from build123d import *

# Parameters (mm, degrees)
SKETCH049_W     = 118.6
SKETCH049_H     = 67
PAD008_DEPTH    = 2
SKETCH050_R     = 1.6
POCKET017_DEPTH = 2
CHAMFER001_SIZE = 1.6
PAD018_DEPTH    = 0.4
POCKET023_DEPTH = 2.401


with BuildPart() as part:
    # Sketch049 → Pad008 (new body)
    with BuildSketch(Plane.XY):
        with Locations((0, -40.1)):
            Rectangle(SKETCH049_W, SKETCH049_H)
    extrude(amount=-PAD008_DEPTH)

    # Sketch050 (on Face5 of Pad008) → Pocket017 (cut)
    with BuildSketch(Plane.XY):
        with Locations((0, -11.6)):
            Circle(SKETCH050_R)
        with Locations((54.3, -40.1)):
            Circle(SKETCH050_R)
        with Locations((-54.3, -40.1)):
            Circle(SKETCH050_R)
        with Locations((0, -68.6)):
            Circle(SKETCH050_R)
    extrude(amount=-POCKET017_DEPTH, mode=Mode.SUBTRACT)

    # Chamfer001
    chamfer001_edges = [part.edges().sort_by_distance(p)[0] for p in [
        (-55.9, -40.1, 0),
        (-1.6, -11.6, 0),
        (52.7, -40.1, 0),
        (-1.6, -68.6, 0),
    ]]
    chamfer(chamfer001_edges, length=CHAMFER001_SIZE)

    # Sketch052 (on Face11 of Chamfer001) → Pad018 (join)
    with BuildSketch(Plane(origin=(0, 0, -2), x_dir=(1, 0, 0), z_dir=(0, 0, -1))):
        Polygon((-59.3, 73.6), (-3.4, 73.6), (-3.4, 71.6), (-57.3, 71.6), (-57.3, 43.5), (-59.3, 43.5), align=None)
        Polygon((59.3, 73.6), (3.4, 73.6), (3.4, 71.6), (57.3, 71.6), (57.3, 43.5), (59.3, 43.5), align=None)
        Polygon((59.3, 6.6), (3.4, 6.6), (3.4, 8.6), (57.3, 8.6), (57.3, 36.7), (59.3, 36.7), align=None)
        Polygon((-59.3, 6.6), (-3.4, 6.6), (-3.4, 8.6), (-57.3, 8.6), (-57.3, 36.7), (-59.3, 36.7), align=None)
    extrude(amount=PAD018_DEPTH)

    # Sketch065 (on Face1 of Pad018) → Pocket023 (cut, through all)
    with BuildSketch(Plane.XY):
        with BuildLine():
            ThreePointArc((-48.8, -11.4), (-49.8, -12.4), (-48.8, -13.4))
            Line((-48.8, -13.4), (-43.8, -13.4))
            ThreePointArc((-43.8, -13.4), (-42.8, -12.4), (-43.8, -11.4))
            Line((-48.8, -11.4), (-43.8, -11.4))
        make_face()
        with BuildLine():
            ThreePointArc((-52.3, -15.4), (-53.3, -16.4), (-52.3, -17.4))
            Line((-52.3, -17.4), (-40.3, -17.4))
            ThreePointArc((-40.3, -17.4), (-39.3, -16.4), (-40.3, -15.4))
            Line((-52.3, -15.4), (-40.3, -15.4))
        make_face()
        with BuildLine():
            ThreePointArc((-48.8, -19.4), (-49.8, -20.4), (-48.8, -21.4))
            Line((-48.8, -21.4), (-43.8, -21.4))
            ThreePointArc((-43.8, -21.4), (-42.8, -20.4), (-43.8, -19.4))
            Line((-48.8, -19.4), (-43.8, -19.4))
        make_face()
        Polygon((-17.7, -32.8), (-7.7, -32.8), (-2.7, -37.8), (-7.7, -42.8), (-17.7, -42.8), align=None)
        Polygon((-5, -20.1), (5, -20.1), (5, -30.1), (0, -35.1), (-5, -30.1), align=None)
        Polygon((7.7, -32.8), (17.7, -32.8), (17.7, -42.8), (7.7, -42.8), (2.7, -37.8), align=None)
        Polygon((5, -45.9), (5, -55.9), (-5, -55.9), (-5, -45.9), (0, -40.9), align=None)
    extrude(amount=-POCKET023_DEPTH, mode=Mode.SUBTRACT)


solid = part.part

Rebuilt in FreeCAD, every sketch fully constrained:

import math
import FreeCAD as App
import Part
import Sketcher
from FreeCAD import Vector


def edges_at(feature, points):
    """Names of the edges that pass closest to the given points."""
    edges = feature.Shape.Edges
    near = lambda p: min(range(len(edges)), key=lambda i: edges[i].distToShape(Part.Vertex(*p))[0])
    return sorted({f"Edge{near(p) + 1}" for p in points})

doc = App.newDocument("Part")
body = doc.addObject("PartDesign::Body", "Body")

sketch1 = body.newObject("Sketcher::SketchObject", "Sketch")
sketch1.AttachmentSupport = (doc.getObject("XY_Plane"), [""])
sketch1.MapMode = "FlatFace"
sketch1.addGeometry(Part.LineSegment(Vector(-59, -7, 0), Vector(-59, -74, 0)), False)
sketch1.addGeometry(Part.LineSegment(Vector(-59, -74, 0), Vector(59, -74, 0)), False)
sketch1.addGeometry(Part.LineSegment(Vector(59, -74, 0), Vector(59, -7, 0)), False)
sketch1.addGeometry(Part.LineSegment(Vector(59, -7, 0), Vector(-59, -7, 0)), False)
sketch1.addConstraint(Sketcher.Constraint("Coincident", 0, 2, 1, 1))
sketch1.addConstraint(Sketcher.Constraint("Coincident", 1, 2, 2, 1))
sketch1.addConstraint(Sketcher.Constraint("Coincident", 2, 2, 3, 1))
sketch1.addConstraint(Sketcher.Constraint("Coincident", 3, 2, 0, 1))
sketch1.addConstraint(Sketcher.Constraint("Vertical", 0))
sketch1.addConstraint(Sketcher.Constraint("Horizontal", 1))
sketch1.addConstraint(Sketcher.Constraint("Vertical", 2))
sketch1.addConstraint(Sketcher.Constraint("Horizontal", 3))
sketch1.addConstraint(Sketcher.Constraint("DistanceY", 0, 2, 0, 1, 67.0))
sketch1.addConstraint(Sketcher.Constraint("DistanceX", 1, 1, 1, 2, 118.6))
sketch1.addConstraint(Sketcher.Constraint("DistanceX", 0, 2, -1, 1, 59.3))
sketch1.addConstraint(Sketcher.Constraint("DistanceY", 0, 2, -1, 1, 73.6))
pad1 = body.newObject("PartDesign::Pad", "Pad")
pad1.Profile = sketch1
pad1.Length = 2
pad1.Reversed = True

sketch2 = body.newObject("Sketcher::SketchObject", "Sketch001")
sketch2.AttachmentSupport = (doc.getObject("XY_Plane"), [""])
sketch2.MapMode = "FlatFace"
sketch2.addGeometry(Part.Circle(Vector(0, -11.6, 0), Vector(0, 0, 1), 1.6), False)
sketch2.addGeometry(Part.Circle(Vector(54.3, -40.1, 0), Vector(0, 0, 1), 1.6), False)
sketch2.addGeometry(Part.Circle(Vector(-54.3, -40.1, 0), Vector(0, 0, 1), 1.6), False)
sketch2.addGeometry(Part.Circle(Vector(0, -68.6, 0), Vector(0, 0, 1), 1.6), False)
sketch2.addConstraint(Sketcher.Constraint("Equal", 0, 1))
sketch2.addConstraint(Sketcher.Constraint("Equal", 1, 2))
sketch2.addConstraint(Sketcher.Constraint("Equal", 2, 3))
sketch2.addConstraint(Sketcher.Constraint("Symmetric", 1, 3, 2, 3, -2))
sketch2.addConstraint(Sketcher.Constraint("PointOnObject", 0, 3, -2))
sketch2.addConstraint(Sketcher.Constraint("PointOnObject", 3, 3, -2))
sketch2.addConstraint(Sketcher.Constraint("Diameter", 0, 3.2))
sketch2.addConstraint(Sketcher.Constraint("DistanceY", 3, 3, 0, 3, 57.0))
sketch2.addConstraint(Sketcher.Constraint("DistanceY", 0, 3, -1, 1, 11.6))
sketch2.addConstraint(Sketcher.Constraint("DistanceX", -1, 1, 1, 3, 54.3))
sketch2.addConstraint(Sketcher.Constraint("DistanceY", 1, 3, -1, 1, 40.1))
pocket1 = body.newObject("PartDesign::Pocket", "Pocket")
pocket1.Profile = sketch2
pocket1.Length = 2
doc.recompute()

chamfer = body.newObject("PartDesign::Chamfer", "Chamfer")
chamfer.Base = (pocket1, edges_at(pocket1, [
    (-55.9, -40.1, 0),
    (-1.6, -11.6, 0),
    (52.7, -40.1, 0),
    (-1.6, -68.6, 0),
]))
chamfer.Size = 1.6

sketch3 = body.newObject("Sketcher::SketchObject", "Sketch002")
sketch3.AttachmentSupport = (doc.getObject("XY_Plane"), [""])
sketch3.MapMode = "FlatFace"
sketch3.AttachmentOffset = App.Placement(Vector(0, 0, -2), App.Rotation())
sketch3.addGeometry(Part.LineSegment(Vector(-3.4, -73.6, 0), Vector(-59.3, -73.6, 0)), False)
sketch3.addGeometry(Part.LineSegment(Vector(-59.3, -73.6, 0), Vector(-59.3, -43.5, 0)), False)
sketch3.addGeometry(Part.LineSegment(Vector(-59.3, -43.5, 0), Vector(-57.3, -43.5, 0)), False)
sketch3.addGeometry(Part.LineSegment(Vector(-57.3, -43.5, 0), Vector(-57.3, -71.6, 0)), False)
sketch3.addGeometry(Part.LineSegment(Vector(-57.3, -71.6, 0), Vector(-3.4, -71.6, 0)), False)
sketch3.addGeometry(Part.LineSegment(Vector(-3.4, -71.6, 0), Vector(-3.4, -73.6, 0)), False)
sketch3.addGeometry(Part.LineSegment(Vector(59.3, -73.6, 0), Vector(3.4, -73.6, 0)), False)
sketch3.addGeometry(Part.LineSegment(Vector(3.4, -73.6, 0), Vector(3.4, -71.6, 0)), False)
sketch3.addGeometry(Part.LineSegment(Vector(3.4, -71.6, 0), Vector(57.3, -71.6, 0)), False)
sketch3.addGeometry(Part.LineSegment(Vector(57.3, -71.6, 0), Vector(57.3, -43.5, 0)), False)
sketch3.addGeometry(Part.LineSegment(Vector(57.3, -43.5, 0), Vector(59.3, -43.5, 0)), False)
sketch3.addGeometry(Part.LineSegment(Vector(59.3, -43.5, 0), Vector(59.3, -73.6, 0)), False)
sketch3.addGeometry(Part.LineSegment(Vector(3.4, -6.6, 0), Vector(59.3, -6.6, 0)), False)
sketch3.addGeometry(Part.LineSegment(Vector(59.3, -6.6, 0), Vector(59.3, -36.7, 0)), False)
sketch3.addGeometry(Part.LineSegment(Vector(59.3, -36.7, 0), Vector(57.3, -36.7, 0)), False)
sketch3.addGeometry(Part.LineSegment(Vector(57.3, -36.7, 0), Vector(57.3, -8.6, 0)), False)
sketch3.addGeometry(Part.LineSegment(Vector(57.3, -8.6, 0), Vector(3.4, -8.6, 0)), False)
sketch3.addGeometry(Part.LineSegment(Vector(3.4, -8.6, 0), Vector(3.4, -6.6, 0)), False)
sketch3.addGeometry(Part.LineSegment(Vector(-59.3, -6.6, 0), Vector(-3.4, -6.6, 0)), False)
sketch3.addGeometry(Part.LineSegment(Vector(-3.4, -6.6, 0), Vector(-3.4, -8.6, 0)), False)
sketch3.addGeometry(Part.LineSegment(Vector(-3.4, -8.6, 0), Vector(-57.3, -8.6, 0)), False)
sketch3.addGeometry(Part.LineSegment(Vector(-57.3, -8.6, 0), Vector(-57.3, -36.7, 0)), False)
sketch3.addGeometry(Part.LineSegment(Vector(-57.3, -36.7, 0), Vector(-59.3, -36.7, 0)), False)
sketch3.addGeometry(Part.LineSegment(Vector(-59.3, -36.7, 0), Vector(-59.3, -6.6, 0)), False)
sketch3.addConstraint(Sketcher.Constraint("Coincident", 0, 2, 1, 1))
sketch3.addConstraint(Sketcher.Constraint("Coincident", 1, 2, 2, 1))
sketch3.addConstraint(Sketcher.Constraint("Coincident", 2, 2, 3, 1))
sketch3.addConstraint(Sketcher.Constraint("Coincident", 3, 2, 4, 1))
sketch3.addConstraint(Sketcher.Constraint("Coincident", 4, 2, 5, 1))
sketch3.addConstraint(Sketcher.Constraint("Coincident", 5, 2, 0, 1))
sketch3.addConstraint(Sketcher.Constraint("Coincident", 6, 2, 7, 1))
sketch3.addConstraint(Sketcher.Constraint("Coincident", 7, 2, 8, 1))
sketch3.addConstraint(Sketcher.Constraint("Coincident", 8, 2, 9, 1))
sketch3.addConstraint(Sketcher.Constraint("Coincident", 9, 2, 10, 1))
sketch3.addConstraint(Sketcher.Constraint("Coincident", 10, 2, 11, 1))
sketch3.addConstraint(Sketcher.Constraint("Coincident", 11, 2, 6, 1))
sketch3.addConstraint(Sketcher.Constraint("Coincident", 12, 2, 13, 1))
sketch3.addConstraint(Sketcher.Constraint("Coincident", 13, 2, 14, 1))
sketch3.addConstraint(Sketcher.Constraint("Coincident", 14, 2, 15, 1))
sketch3.addConstraint(Sketcher.Constraint("Coincident", 15, 2, 16, 1))
sketch3.addConstraint(Sketcher.Constraint("Coincident", 16, 2, 17, 1))
sketch3.addConstraint(Sketcher.Constraint("Coincident", 17, 2, 12, 1))
sketch3.addConstraint(Sketcher.Constraint("Coincident", 18, 2, 19, 1))
sketch3.addConstraint(Sketcher.Constraint("Coincident", 19, 2, 20, 1))
sketch3.addConstraint(Sketcher.Constraint("Coincident", 20, 2, 21, 1))
sketch3.addConstraint(Sketcher.Constraint("Coincident", 21, 2, 22, 1))
sketch3.addConstraint(Sketcher.Constraint("Coincident", 22, 2, 23, 1))
sketch3.addConstraint(Sketcher.Constraint("Coincident", 23, 2, 18, 1))
sketch3.addConstraint(Sketcher.Constraint("Horizontal", 0))
sketch3.addConstraint(Sketcher.Constraint("Vertical", 1))
sketch3.addConstraint(Sketcher.Constraint("Horizontal", 2))
sketch3.addConstraint(Sketcher.Constraint("Vertical", 3))
sketch3.addConstraint(Sketcher.Constraint("Horizontal", 4))
sketch3.addConstraint(Sketcher.Constraint("Vertical", 5))
sketch3.addConstraint(Sketcher.Constraint("Horizontal", 6))
sketch3.addConstraint(Sketcher.Constraint("Vertical", 7))
sketch3.addConstraint(Sketcher.Constraint("Horizontal", 8))
sketch3.addConstraint(Sketcher.Constraint("Vertical", 9))
sketch3.addConstraint(Sketcher.Constraint("Horizontal", 10))
sketch3.addConstraint(Sketcher.Constraint("Vertical", 11))
sketch3.addConstraint(Sketcher.Constraint("Horizontal", 12))
sketch3.addConstraint(Sketcher.Constraint("Vertical", 13))
sketch3.addConstraint(Sketcher.Constraint("Horizontal", 14))
sketch3.addConstraint(Sketcher.Constraint("Vertical", 15))
sketch3.addConstraint(Sketcher.Constraint("Horizontal", 16))
sketch3.addConstraint(Sketcher.Constraint("Vertical", 17))
sketch3.addConstraint(Sketcher.Constraint("Horizontal", 18))
sketch3.addConstraint(Sketcher.Constraint("Vertical", 19))
sketch3.addConstraint(Sketcher.Constraint("Horizontal", 20))
sketch3.addConstraint(Sketcher.Constraint("Vertical", 21))
sketch3.addConstraint(Sketcher.Constraint("Horizontal", 22))
sketch3.addConstraint(Sketcher.Constraint("Vertical", 23))
sketch3.addConstraint(Sketcher.Constraint("Symmetric", 5, 2, 6, 2, -2))
sketch3.addConstraint(Sketcher.Constraint("Symmetric", 3, 2, 8, 2, -2))
sketch3.addConstraint(Sketcher.Constraint("Symmetric", 1, 2, 10, 2, -2))
sketch3.addConstraint(Sketcher.Constraint("Symmetric", 17, 2, 18, 2, -2))
sketch3.addConstraint(Sketcher.Constraint("Symmetric", 15, 2, 20, 2, -2))
sketch3.addConstraint(Sketcher.Constraint("Symmetric", 13, 2, 22, 2, -2))
sketch3.addConstraint(Sketcher.Constraint("Vertical", 11, 2, 12, 2))
sketch3.addConstraint(Sketcher.Constraint("Vertical", 9, 2, 14, 2))
sketch3.addConstraint(Sketcher.Constraint("Vertical", 7, 2, 16, 2))
sketch3.addConstraint(Sketcher.Constraint("Equal", 22, 5))
sketch3.addConstraint(Sketcher.Constraint("Equal", 11, 13))
sketch3.addConstraint(Sketcher.Constraint("Equal", 9, 15))
sketch3.addConstraint(Sketcher.Constraint("DistanceX", 2, 1, 2, 2, 2.0))
sketch3.addConstraint(Sketcher.Constraint("DistanceX", 0, 2, 0, 1, 55.9))
sketch3.addConstraint(Sketcher.Constraint("DistanceY", 1, 1, 1, 2, 30.1))
sketch3.addConstraint(Sketcher.Constraint("DistanceY", 8, 2, 12, 2, 65.0))
sketch3.addConstraint(Sketcher.Constraint("DistanceX", 0, 2, -1, 1, 59.3))
sketch3.addConstraint(Sketcher.Constraint("DistanceY", 0, 2, -1, 1, 73.6))
pad2 = body.newObject("PartDesign::Pad", "Pad001")
pad2.Profile = sketch3
pad2.Length = 0.4
pad2.Reversed = True

sketch4 = body.newObject("Sketcher::SketchObject", "Sketch003")
sketch4.AttachmentSupport = (doc.getObject("XY_Plane"), [""])
sketch4.MapMode = "FlatFace"
sketch4.addGeometry(Part.ArcOfCircle(Part.Circle(Vector(-48.8, -12.4, 0), Vector(0, 0, 1), 1), math.radians(90), math.radians(270)), False)
sketch4.addGeometry(Part.LineSegment(Vector(-48.8, -13.4, 0), Vector(-43.8, -13.4, 0)), False)
sketch4.addGeometry(Part.ArcOfCircle(Part.Circle(Vector(-43.8, -12.4, 0), Vector(0, 0, 1), 1), math.radians(-90), math.radians(90)), False)
sketch4.addGeometry(Part.LineSegment(Vector(-43.8, -11.4, 0), Vector(-48.8, -11.4, 0)), False)
sketch4.addGeometry(Part.ArcOfCircle(Part.Circle(Vector(-52.3, -16.4, 0), Vector(0, 0, 1), 1), math.radians(90), math.radians(270)), False)
sketch4.addGeometry(Part.LineSegment(Vector(-52.3, -17.4, 0), Vector(-40.3, -17.4, 0)), False)
sketch4.addGeometry(Part.ArcOfCircle(Part.Circle(Vector(-40.3, -16.4, 0), Vector(0, 0, 1), 1), math.radians(-90), math.radians(90)), False)
sketch4.addGeometry(Part.LineSegment(Vector(-40.3, -15.4, 0), Vector(-52.3, -15.4, 0)), False)
sketch4.addGeometry(Part.ArcOfCircle(Part.Circle(Vector(-48.8, -20.4, 0), Vector(0, 0, 1), 1), math.radians(90), math.radians(270)), False)
sketch4.addGeometry(Part.LineSegment(Vector(-48.8, -21.4, 0), Vector(-43.8, -21.4, 0)), False)
sketch4.addGeometry(Part.ArcOfCircle(Part.Circle(Vector(-43.8, -20.4, 0), Vector(0, 0, 1), 1), math.radians(-90), math.radians(90)), False)
sketch4.addGeometry(Part.LineSegment(Vector(-43.8, -19.4, 0), Vector(-48.8, -19.4, 0)), False)
sketch4.addGeometry(Part.LineSegment(Vector(-7.7, -32.8, 0), Vector(-17.7, -32.8, 0)), False)
sketch4.addGeometry(Part.LineSegment(Vector(-17.7, -32.8, 0), Vector(-17.7, -42.8, 0)), False)
sketch4.addGeometry(Part.LineSegment(Vector(-17.7, -42.8, 0), Vector(-7.7, -42.8, 0)), False)
sketch4.addGeometry(Part.LineSegment(Vector(-7.7, -42.8, 0), Vector(-2.7, -37.8, 0)), False)
sketch4.addGeometry(Part.LineSegment(Vector(-2.7, -37.8, 0), Vector(-7.7, -32.8, 0)), False)
sketch4.addGeometry(Part.LineSegment(Vector(5, -20.1, 0), Vector(-5, -20.1, 0)), False)
sketch4.addGeometry(Part.LineSegment(Vector(-5, -20.1, 0), Vector(-5, -30.1, 0)), False)
sketch4.addGeometry(Part.LineSegment(Vector(-5, -30.1, 0), Vector(0, -35.1, 0)), False)
sketch4.addGeometry(Part.LineSegment(Vector(0, -35.1, 0), Vector(5, -30.1, 0)), False)
sketch4.addGeometry(Part.LineSegment(Vector(5, -30.1, 0), Vector(5, -20.1, 0)), False)
sketch4.addGeometry(Part.LineSegment(Vector(17.7, -32.8, 0), Vector(7.7, -32.8, 0)), False)
sketch4.addGeometry(Part.LineSegment(Vector(7.7, -32.8, 0), Vector(2.7, -37.8, 0)), False)
sketch4.addGeometry(Part.LineSegment(Vector(2.7, -37.8, 0), Vector(7.7, -42.8, 0)), False)
sketch4.addGeometry(Part.LineSegment(Vector(7.7, -42.8, 0), Vector(17.7, -42.8, 0)), False)
sketch4.addGeometry(Part.LineSegment(Vector(17.7, -42.8, 0), Vector(17.7, -32.8, 0)), False)
sketch4.addGeometry(Part.LineSegment(Vector(5, -55.9, 0), Vector(5, -45.9, 0)), False)
sketch4.addGeometry(Part.LineSegment(Vector(5, -45.9, 0), Vector(0, -40.9, 0)), False)
sketch4.addGeometry(Part.LineSegment(Vector(0, -40.9, 0), Vector(-5, -45.9, 0)), False)
sketch4.addGeometry(Part.LineSegment(Vector(-5, -45.9, 0), Vector(-5, -55.9, 0)), False)
sketch4.addGeometry(Part.LineSegment(Vector(-5, -55.9, 0), Vector(5, -55.9, 0)), False)
sketch4.addConstraint(Sketcher.Constraint("Tangent", 0, 2, 1, 1))
sketch4.addConstraint(Sketcher.Constraint("Tangent", 1, 2, 2, 1))
sketch4.addConstraint(Sketcher.Constraint("Tangent", 2, 2, 3, 1))
sketch4.addConstraint(Sketcher.Constraint("Tangent", 3, 2, 0, 1))
sketch4.addConstraint(Sketcher.Constraint("Tangent", 4, 2, 5, 1))
sketch4.addConstraint(Sketcher.Constraint("Tangent", 5, 2, 6, 1))
sketch4.addConstraint(Sketcher.Constraint("Tangent", 6, 2, 7, 1))
sketch4.addConstraint(Sketcher.Constraint("Tangent", 7, 2, 4, 1))
sketch4.addConstraint(Sketcher.Constraint("Tangent", 8, 2, 9, 1))
sketch4.addConstraint(Sketcher.Constraint("Tangent", 9, 2, 10, 1))
sketch4.addConstraint(Sketcher.Constraint("Tangent", 10, 2, 11, 1))
sketch4.addConstraint(Sketcher.Constraint("Tangent", 11, 2, 8, 1))
sketch4.addConstraint(Sketcher.Constraint("Coincident", 12, 2, 13, 1))
sketch4.addConstraint(Sketcher.Constraint("Coincident", 13, 2, 14, 1))
sketch4.addConstraint(Sketcher.Constraint("Coincident", 14, 2, 15, 1))
sketch4.addConstraint(Sketcher.Constraint("Coincident", 15, 2, 16, 1))
sketch4.addConstraint(Sketcher.Constraint("Coincident", 16, 2, 12, 1))
sketch4.addConstraint(Sketcher.Constraint("Coincident", 17, 2, 18, 1))
sketch4.addConstraint(Sketcher.Constraint("Coincident", 18, 2, 19, 1))
sketch4.addConstraint(Sketcher.Constraint("Coincident", 19, 2, 20, 1))
sketch4.addConstraint(Sketcher.Constraint("Coincident", 20, 2, 21, 1))
sketch4.addConstraint(Sketcher.Constraint("Coincident", 21, 2, 17, 1))
sketch4.addConstraint(Sketcher.Constraint("Coincident", 22, 2, 23, 1))
sketch4.addConstraint(Sketcher.Constraint("Coincident", 23, 2, 24, 1))
sketch4.addConstraint(Sketcher.Constraint("Coincident", 24, 2, 25, 1))
sketch4.addConstraint(Sketcher.Constraint("Coincident", 25, 2, 26, 1))
sketch4.addConstraint(Sketcher.Constraint("Coincident", 26, 2, 22, 1))
sketch4.addConstraint(Sketcher.Constraint("Coincident", 27, 2, 28, 1))
sketch4.addConstraint(Sketcher.Constraint("Coincident", 28, 2, 29, 1))
sketch4.addConstraint(Sketcher.Constraint("Coincident", 29, 2, 30, 1))
sketch4.addConstraint(Sketcher.Constraint("Coincident", 30, 2, 31, 1))
sketch4.addConstraint(Sketcher.Constraint("Coincident", 31, 2, 27, 1))
sketch4.addConstraint(Sketcher.Constraint("Horizontal", 1))
sketch4.addConstraint(Sketcher.Constraint("Horizontal", 3))
sketch4.addConstraint(Sketcher.Constraint("Horizontal", 5))
sketch4.addConstraint(Sketcher.Constraint("Horizontal", 7))
sketch4.addConstraint(Sketcher.Constraint("Horizontal", 9))
sketch4.addConstraint(Sketcher.Constraint("Horizontal", 11))
sketch4.addConstraint(Sketcher.Constraint("Horizontal", 12))
sketch4.addConstraint(Sketcher.Constraint("Vertical", 13))
sketch4.addConstraint(Sketcher.Constraint("Horizontal", 14))
sketch4.addConstraint(Sketcher.Constraint("Horizontal", 17))
sketch4.addConstraint(Sketcher.Constraint("Vertical", 18))
sketch4.addConstraint(Sketcher.Constraint("Vertical", 21))
sketch4.addConstraint(Sketcher.Constraint("Horizontal", 22))
sketch4.addConstraint(Sketcher.Constraint("Horizontal", 25))
sketch4.addConstraint(Sketcher.Constraint("Vertical", 26))
sketch4.addConstraint(Sketcher.Constraint("Vertical", 27))
sketch4.addConstraint(Sketcher.Constraint("Vertical", 30))
sketch4.addConstraint(Sketcher.Constraint("Horizontal", 31))
sketch4.addConstraint(Sketcher.Constraint("Equal", 2, 4))
sketch4.addConstraint(Sketcher.Constraint("Equal", 6, 8))
sketch4.addConstraint(Sketcher.Constraint("Symmetric", 18, 2, 20, 2, -2))
sketch4.addConstraint(Sketcher.Constraint("Symmetric", 16, 2, 22, 2, -2))
sketch4.addConstraint(Sketcher.Constraint("Symmetric", 15, 2, 23, 2, -2))
sketch4.addConstraint(Sketcher.Constraint("Symmetric", 14, 2, 24, 2, -2))
sketch4.addConstraint(Sketcher.Constraint("Symmetric", 27, 2, 29, 2, -2))
sketch4.addConstraint(Sketcher.Constraint("PointOnObject", 19, 2, -2))
sketch4.addConstraint(Sketcher.Constraint("PointOnObject", 28, 2, -2))
sketch4.addConstraint(Sketcher.Constraint("Perpendicular", 15, 16))
sketch4.addConstraint(Sketcher.Constraint("Parallel", 16, 19))
sketch4.addConstraint(Sketcher.Constraint("Perpendicular", 19, 20))
sketch4.addConstraint(Sketcher.Constraint("Parallel", 24, 28))
sketch4.addConstraint(Sketcher.Constraint("Vertical", 0, 3, 8, 3))
sketch4.addConstraint(Sketcher.Constraint("Vertical", 2, 3, 10, 3))
sketch4.addConstraint(Sketcher.Constraint("Vertical", 14, 2, 16, 2))
sketch4.addConstraint(Sketcher.Constraint("Vertical", 21, 2, 27, 2))
sketch4.addConstraint(Sketcher.Constraint("Equal", 14, 17))
sketch4.addConstraint(Sketcher.Constraint("Equal", 17, 22))
sketch4.addConstraint(Sketcher.Constraint("Equal", 31, 13))
sketch4.addConstraint(Sketcher.Constraint("Equal", 13, 18))
sketch4.addConstraint(Sketcher.Constraint("Equal", 26, 27))
sketch4.addConstraint(Sketcher.Constraint("Radius", 0, 1.0))
sketch4.addConstraint(Sketcher.Constraint("DistanceX", 1, 1, 1, 2, 5.0))
sketch4.addConstraint(Sketcher.Constraint("DistanceX", 5, 1, 5, 2, 12.0))
sketch4.addConstraint(Sketcher.Constraint("DistanceX", 12, 2, 12, 1, 10.0))
sketch4.addConstraint(Sketcher.Constraint("DistanceY", 4, 3, 0, 3, 4.0))
sketch4.addConstraint(Sketcher.Constraint("DistanceY", 8, 3, 4, 3, 4.0))
sketch4.addConstraint(Sketcher.Constraint("DistanceX", 0, 3, -1, 1, 48.8))
sketch4.addConstraint(Sketcher.Constraint("DistanceY", 0, 3, -1, 1, 12.4))
sketch4.addConstraint(Sketcher.Constraint("DistanceX", 4, 3, -1, 1, 52.3))
sketch4.addConstraint(Sketcher.Constraint("DistanceX", 12, 2, -1, 1, 17.7))
sketch4.addConstraint(Sketcher.Constraint("DistanceY", 12, 2, -1, 1, 32.8))
sketch4.addConstraint(Sketcher.Constraint("DistanceY", 17, 2, -1, 1, 20.1))
sketch4.addConstraint(Sketcher.Constraint("DistanceY", 27, 2, -1, 1, 45.9))
pocket2 = body.newObject("PartDesign::Pocket", "Pocket001")
pocket2.Profile = sketch4
pocket2.Type = "ThroughAll"

doc.recompute()
